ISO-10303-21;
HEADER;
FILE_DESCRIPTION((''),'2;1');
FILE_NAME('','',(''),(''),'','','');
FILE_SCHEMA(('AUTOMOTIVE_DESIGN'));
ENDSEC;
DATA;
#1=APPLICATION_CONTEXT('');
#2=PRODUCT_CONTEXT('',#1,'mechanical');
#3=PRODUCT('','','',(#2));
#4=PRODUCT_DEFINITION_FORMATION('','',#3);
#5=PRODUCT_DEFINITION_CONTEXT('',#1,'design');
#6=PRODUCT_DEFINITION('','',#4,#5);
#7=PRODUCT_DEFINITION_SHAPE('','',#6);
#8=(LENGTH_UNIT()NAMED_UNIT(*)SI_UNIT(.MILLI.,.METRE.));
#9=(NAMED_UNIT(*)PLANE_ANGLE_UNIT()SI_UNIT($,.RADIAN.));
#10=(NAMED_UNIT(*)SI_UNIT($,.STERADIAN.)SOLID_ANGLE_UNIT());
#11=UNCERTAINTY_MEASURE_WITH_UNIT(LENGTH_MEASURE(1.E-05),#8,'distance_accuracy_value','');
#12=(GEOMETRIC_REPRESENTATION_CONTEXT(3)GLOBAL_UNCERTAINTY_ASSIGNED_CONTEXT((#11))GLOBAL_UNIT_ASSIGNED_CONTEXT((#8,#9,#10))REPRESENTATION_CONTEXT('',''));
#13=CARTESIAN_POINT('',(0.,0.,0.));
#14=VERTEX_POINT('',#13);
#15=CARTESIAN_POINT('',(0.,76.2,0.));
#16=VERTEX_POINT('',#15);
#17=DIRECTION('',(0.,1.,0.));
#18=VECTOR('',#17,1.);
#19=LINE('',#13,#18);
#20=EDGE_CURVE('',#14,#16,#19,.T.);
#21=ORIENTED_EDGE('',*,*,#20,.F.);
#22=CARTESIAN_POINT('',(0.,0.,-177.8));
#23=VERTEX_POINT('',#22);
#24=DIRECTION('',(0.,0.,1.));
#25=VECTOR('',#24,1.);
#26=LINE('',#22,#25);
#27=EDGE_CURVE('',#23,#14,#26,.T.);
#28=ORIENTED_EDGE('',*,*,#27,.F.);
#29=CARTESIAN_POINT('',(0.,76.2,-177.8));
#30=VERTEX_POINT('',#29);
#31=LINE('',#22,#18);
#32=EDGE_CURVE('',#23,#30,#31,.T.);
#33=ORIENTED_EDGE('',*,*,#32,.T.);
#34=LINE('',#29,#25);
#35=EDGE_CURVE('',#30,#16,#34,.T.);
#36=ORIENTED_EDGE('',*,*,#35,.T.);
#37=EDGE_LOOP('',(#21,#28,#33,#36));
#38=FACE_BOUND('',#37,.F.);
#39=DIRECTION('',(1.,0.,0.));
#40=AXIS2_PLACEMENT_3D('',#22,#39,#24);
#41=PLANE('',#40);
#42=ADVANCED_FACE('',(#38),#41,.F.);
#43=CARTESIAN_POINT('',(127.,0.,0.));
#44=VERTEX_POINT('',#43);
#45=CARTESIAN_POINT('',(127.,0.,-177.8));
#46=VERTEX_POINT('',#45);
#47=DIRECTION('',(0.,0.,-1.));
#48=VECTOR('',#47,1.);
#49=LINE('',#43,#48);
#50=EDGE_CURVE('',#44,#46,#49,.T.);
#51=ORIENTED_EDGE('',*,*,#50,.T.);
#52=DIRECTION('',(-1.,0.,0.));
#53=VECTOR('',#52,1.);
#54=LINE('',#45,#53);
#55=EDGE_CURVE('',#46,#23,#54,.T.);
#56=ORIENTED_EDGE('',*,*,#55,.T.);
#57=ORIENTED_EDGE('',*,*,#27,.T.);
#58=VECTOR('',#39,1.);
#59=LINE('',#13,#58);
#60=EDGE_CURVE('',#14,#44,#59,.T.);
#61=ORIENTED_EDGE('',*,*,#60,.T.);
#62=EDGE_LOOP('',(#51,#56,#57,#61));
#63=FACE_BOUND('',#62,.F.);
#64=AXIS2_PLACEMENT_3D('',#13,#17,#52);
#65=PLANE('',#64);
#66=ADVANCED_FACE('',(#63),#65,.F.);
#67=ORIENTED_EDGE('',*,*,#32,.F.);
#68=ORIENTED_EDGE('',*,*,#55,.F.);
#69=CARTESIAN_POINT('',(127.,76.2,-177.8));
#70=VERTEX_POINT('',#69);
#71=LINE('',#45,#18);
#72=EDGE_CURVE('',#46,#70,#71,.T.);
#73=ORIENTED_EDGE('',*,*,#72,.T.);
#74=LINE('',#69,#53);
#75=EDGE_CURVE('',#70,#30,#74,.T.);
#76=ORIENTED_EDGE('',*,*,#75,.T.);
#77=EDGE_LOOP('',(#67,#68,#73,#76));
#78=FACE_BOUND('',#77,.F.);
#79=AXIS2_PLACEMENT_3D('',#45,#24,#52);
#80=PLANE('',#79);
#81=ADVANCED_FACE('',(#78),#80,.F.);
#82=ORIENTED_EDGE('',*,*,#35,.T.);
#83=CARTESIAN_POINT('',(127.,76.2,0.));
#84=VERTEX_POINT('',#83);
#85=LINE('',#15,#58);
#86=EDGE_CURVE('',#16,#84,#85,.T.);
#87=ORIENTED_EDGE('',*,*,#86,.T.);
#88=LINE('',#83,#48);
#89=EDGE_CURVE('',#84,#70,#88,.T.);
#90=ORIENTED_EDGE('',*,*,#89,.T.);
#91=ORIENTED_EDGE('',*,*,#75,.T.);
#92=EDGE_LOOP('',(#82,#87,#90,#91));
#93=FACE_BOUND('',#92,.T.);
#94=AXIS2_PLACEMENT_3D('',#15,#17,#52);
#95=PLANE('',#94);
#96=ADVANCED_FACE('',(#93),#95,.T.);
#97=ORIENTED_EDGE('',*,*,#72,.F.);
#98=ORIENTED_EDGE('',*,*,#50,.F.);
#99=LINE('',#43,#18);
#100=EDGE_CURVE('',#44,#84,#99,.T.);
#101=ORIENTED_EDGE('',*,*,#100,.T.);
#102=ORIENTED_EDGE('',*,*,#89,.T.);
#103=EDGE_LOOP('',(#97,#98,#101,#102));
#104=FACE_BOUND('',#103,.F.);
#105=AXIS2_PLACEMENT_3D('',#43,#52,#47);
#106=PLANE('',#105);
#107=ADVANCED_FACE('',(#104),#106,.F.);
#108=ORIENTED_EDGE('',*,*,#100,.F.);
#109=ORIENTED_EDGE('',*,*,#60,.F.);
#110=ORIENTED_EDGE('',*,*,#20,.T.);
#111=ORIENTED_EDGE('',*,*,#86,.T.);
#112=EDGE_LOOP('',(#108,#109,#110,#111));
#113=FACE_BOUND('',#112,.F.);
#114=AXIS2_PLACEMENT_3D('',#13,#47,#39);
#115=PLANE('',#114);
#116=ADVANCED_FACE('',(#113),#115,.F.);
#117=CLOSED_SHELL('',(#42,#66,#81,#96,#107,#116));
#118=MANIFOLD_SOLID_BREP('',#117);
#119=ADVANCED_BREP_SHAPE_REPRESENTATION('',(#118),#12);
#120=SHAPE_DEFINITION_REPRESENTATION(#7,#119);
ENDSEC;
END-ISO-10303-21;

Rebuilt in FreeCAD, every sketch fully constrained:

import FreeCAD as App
import Part
import Sketcher
Q = App.Units.Quantity


def add_polygon(sketch, points):
    """Adds a closed chain of lines whose ends are joined by coincident constraints."""
    first, n = sketch.GeometryCount, len(points)
    for a, b in zip(points, points[1:] + points[:1]):
        sketch.addGeometry(Part.LineSegment(App.Vector(*a, 0), App.Vector(*b, 0)), False)
    for i in range(n):
        sketch.addConstraint(Sketcher.Constraint("Coincident", first + i, 2, first + (i + 1) % n, 1))

doc = App.newDocument("Part")
body = doc.addObject("PartDesign::Body", "Body")

# Sketch on XZ plane
sketch1 = doc.addObject("Sketcher::SketchObject", "Sketch")
body.addObject(sketch1)
sketch1.AttachmentSupport = (doc.XZ_Plane, [""])
sketch1.MapMode = "FlatFace"
add_polygon(sketch1, [(0, -178), (0, 0), (127, 0), (127, -178)])  # lines 0-3
sketch1.addConstraint([
    Sketcher.Constraint("Vertical", 0),
    Sketcher.Constraint("Horizontal", 1),
    Sketcher.Constraint("Vertical", 2),
    Sketcher.Constraint("Horizontal", 3),
    Sketcher.Constraint("Coincident", 0, 2, -1, 1),
    Sketcher.Constraint("DistanceX", 1, 1, 1, 2, Q("5 in")),
    Sketcher.Constraint("DistanceY", 0, 1, 0, 2, Q("7 in")),
])
pad1 = doc.addObject("PartDesign::Pad", "Pad")
body.addObject(pad1)
pad1.Profile = sketch1
pad1.Length = Q("3 in")
pad1.Reversed = True

doc.recompute()
